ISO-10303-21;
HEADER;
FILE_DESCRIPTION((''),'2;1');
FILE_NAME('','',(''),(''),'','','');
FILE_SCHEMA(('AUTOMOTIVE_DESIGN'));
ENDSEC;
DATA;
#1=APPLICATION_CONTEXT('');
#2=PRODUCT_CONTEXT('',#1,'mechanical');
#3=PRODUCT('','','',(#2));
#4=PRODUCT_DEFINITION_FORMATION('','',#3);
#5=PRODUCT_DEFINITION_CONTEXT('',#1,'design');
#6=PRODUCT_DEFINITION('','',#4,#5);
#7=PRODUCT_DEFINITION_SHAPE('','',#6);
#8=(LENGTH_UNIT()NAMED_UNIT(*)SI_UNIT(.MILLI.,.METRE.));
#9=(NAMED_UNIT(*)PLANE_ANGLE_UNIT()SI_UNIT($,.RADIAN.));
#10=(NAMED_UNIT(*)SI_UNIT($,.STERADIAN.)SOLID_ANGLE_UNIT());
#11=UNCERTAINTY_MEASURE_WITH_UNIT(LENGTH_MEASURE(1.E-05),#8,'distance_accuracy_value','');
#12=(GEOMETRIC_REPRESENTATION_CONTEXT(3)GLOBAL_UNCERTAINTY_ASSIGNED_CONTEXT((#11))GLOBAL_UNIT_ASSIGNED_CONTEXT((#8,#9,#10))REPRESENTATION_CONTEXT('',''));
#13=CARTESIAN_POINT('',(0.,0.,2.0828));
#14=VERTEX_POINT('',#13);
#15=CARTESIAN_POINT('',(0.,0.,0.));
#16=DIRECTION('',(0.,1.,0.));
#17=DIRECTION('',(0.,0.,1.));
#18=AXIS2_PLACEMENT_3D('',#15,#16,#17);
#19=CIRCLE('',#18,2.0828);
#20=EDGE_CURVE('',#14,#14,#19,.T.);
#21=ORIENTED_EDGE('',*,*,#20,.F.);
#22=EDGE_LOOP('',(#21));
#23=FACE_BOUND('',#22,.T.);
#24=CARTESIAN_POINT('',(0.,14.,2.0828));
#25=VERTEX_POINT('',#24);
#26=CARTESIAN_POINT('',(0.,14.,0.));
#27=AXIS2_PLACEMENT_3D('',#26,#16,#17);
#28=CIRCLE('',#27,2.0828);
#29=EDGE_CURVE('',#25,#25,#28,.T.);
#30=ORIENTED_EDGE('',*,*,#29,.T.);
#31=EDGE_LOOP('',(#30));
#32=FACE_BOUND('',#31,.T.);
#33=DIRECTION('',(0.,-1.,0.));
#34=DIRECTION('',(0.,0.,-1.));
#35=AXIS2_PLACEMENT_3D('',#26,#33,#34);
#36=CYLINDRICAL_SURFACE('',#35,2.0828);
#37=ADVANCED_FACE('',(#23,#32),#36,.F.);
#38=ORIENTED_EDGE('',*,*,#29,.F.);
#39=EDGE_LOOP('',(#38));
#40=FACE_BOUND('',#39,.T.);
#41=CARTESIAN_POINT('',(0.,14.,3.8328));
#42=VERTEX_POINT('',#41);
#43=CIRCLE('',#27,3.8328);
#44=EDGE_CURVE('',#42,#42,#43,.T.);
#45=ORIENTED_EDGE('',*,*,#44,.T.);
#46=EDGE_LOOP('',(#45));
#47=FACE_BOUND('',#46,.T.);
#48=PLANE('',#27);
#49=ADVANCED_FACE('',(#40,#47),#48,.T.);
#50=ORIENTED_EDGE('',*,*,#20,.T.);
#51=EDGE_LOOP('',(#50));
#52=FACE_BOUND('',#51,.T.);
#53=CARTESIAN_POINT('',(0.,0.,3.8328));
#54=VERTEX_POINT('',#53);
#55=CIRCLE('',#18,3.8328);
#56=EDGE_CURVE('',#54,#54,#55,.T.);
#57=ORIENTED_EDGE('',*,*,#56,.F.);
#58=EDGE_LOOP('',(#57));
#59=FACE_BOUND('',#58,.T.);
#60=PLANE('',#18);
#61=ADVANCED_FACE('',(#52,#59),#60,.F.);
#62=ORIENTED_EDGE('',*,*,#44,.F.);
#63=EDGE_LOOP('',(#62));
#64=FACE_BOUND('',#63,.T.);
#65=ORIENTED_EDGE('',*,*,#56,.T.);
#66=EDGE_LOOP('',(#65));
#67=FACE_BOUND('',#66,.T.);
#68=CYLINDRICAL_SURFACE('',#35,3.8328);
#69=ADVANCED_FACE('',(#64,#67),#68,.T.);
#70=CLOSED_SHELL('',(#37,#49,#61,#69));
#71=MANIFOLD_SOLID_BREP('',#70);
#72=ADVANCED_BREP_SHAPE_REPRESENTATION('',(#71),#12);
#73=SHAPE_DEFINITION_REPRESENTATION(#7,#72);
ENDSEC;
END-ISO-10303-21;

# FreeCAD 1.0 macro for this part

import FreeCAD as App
import Part
import Sketcher

V = App.Vector

doc = App.newDocument("Part")
body = doc.addObject("PartDesign::Body", "Body")

# Sketch on XZ plane
sketch1 = body.newObject("Sketcher::SketchObject", "Sketch")
sketch1.AttachmentSupport = (doc.getObject("XZ_Plane"), [""])
sketch1.MapMode = "FlatFace"
sketch1.addGeometry([
    Part.Circle(V(0, 0, 0), V(0, 0, 1), 3.8328),
    Part.Circle(V(0, 0, 0), V(0, 0, 1), 2.0828),
], False)
sketch1.addConstraint([
    Sketcher.Constraint("Coincident", 0, 3, -1, 1),
    Sketcher.Constraint("Coincident", 1, 3, -1, 1),
    Sketcher.Constraint("Diameter", 0, 7.6656),
    Sketcher.Constraint("Diameter", 1, 4.1656),
])
pad1 = body.newObject("PartDesign::Pad", "Pad")
pad1.Profile = sketch1
pad1.Length = 14
pad1.Reversed = True

doc.recompute()
